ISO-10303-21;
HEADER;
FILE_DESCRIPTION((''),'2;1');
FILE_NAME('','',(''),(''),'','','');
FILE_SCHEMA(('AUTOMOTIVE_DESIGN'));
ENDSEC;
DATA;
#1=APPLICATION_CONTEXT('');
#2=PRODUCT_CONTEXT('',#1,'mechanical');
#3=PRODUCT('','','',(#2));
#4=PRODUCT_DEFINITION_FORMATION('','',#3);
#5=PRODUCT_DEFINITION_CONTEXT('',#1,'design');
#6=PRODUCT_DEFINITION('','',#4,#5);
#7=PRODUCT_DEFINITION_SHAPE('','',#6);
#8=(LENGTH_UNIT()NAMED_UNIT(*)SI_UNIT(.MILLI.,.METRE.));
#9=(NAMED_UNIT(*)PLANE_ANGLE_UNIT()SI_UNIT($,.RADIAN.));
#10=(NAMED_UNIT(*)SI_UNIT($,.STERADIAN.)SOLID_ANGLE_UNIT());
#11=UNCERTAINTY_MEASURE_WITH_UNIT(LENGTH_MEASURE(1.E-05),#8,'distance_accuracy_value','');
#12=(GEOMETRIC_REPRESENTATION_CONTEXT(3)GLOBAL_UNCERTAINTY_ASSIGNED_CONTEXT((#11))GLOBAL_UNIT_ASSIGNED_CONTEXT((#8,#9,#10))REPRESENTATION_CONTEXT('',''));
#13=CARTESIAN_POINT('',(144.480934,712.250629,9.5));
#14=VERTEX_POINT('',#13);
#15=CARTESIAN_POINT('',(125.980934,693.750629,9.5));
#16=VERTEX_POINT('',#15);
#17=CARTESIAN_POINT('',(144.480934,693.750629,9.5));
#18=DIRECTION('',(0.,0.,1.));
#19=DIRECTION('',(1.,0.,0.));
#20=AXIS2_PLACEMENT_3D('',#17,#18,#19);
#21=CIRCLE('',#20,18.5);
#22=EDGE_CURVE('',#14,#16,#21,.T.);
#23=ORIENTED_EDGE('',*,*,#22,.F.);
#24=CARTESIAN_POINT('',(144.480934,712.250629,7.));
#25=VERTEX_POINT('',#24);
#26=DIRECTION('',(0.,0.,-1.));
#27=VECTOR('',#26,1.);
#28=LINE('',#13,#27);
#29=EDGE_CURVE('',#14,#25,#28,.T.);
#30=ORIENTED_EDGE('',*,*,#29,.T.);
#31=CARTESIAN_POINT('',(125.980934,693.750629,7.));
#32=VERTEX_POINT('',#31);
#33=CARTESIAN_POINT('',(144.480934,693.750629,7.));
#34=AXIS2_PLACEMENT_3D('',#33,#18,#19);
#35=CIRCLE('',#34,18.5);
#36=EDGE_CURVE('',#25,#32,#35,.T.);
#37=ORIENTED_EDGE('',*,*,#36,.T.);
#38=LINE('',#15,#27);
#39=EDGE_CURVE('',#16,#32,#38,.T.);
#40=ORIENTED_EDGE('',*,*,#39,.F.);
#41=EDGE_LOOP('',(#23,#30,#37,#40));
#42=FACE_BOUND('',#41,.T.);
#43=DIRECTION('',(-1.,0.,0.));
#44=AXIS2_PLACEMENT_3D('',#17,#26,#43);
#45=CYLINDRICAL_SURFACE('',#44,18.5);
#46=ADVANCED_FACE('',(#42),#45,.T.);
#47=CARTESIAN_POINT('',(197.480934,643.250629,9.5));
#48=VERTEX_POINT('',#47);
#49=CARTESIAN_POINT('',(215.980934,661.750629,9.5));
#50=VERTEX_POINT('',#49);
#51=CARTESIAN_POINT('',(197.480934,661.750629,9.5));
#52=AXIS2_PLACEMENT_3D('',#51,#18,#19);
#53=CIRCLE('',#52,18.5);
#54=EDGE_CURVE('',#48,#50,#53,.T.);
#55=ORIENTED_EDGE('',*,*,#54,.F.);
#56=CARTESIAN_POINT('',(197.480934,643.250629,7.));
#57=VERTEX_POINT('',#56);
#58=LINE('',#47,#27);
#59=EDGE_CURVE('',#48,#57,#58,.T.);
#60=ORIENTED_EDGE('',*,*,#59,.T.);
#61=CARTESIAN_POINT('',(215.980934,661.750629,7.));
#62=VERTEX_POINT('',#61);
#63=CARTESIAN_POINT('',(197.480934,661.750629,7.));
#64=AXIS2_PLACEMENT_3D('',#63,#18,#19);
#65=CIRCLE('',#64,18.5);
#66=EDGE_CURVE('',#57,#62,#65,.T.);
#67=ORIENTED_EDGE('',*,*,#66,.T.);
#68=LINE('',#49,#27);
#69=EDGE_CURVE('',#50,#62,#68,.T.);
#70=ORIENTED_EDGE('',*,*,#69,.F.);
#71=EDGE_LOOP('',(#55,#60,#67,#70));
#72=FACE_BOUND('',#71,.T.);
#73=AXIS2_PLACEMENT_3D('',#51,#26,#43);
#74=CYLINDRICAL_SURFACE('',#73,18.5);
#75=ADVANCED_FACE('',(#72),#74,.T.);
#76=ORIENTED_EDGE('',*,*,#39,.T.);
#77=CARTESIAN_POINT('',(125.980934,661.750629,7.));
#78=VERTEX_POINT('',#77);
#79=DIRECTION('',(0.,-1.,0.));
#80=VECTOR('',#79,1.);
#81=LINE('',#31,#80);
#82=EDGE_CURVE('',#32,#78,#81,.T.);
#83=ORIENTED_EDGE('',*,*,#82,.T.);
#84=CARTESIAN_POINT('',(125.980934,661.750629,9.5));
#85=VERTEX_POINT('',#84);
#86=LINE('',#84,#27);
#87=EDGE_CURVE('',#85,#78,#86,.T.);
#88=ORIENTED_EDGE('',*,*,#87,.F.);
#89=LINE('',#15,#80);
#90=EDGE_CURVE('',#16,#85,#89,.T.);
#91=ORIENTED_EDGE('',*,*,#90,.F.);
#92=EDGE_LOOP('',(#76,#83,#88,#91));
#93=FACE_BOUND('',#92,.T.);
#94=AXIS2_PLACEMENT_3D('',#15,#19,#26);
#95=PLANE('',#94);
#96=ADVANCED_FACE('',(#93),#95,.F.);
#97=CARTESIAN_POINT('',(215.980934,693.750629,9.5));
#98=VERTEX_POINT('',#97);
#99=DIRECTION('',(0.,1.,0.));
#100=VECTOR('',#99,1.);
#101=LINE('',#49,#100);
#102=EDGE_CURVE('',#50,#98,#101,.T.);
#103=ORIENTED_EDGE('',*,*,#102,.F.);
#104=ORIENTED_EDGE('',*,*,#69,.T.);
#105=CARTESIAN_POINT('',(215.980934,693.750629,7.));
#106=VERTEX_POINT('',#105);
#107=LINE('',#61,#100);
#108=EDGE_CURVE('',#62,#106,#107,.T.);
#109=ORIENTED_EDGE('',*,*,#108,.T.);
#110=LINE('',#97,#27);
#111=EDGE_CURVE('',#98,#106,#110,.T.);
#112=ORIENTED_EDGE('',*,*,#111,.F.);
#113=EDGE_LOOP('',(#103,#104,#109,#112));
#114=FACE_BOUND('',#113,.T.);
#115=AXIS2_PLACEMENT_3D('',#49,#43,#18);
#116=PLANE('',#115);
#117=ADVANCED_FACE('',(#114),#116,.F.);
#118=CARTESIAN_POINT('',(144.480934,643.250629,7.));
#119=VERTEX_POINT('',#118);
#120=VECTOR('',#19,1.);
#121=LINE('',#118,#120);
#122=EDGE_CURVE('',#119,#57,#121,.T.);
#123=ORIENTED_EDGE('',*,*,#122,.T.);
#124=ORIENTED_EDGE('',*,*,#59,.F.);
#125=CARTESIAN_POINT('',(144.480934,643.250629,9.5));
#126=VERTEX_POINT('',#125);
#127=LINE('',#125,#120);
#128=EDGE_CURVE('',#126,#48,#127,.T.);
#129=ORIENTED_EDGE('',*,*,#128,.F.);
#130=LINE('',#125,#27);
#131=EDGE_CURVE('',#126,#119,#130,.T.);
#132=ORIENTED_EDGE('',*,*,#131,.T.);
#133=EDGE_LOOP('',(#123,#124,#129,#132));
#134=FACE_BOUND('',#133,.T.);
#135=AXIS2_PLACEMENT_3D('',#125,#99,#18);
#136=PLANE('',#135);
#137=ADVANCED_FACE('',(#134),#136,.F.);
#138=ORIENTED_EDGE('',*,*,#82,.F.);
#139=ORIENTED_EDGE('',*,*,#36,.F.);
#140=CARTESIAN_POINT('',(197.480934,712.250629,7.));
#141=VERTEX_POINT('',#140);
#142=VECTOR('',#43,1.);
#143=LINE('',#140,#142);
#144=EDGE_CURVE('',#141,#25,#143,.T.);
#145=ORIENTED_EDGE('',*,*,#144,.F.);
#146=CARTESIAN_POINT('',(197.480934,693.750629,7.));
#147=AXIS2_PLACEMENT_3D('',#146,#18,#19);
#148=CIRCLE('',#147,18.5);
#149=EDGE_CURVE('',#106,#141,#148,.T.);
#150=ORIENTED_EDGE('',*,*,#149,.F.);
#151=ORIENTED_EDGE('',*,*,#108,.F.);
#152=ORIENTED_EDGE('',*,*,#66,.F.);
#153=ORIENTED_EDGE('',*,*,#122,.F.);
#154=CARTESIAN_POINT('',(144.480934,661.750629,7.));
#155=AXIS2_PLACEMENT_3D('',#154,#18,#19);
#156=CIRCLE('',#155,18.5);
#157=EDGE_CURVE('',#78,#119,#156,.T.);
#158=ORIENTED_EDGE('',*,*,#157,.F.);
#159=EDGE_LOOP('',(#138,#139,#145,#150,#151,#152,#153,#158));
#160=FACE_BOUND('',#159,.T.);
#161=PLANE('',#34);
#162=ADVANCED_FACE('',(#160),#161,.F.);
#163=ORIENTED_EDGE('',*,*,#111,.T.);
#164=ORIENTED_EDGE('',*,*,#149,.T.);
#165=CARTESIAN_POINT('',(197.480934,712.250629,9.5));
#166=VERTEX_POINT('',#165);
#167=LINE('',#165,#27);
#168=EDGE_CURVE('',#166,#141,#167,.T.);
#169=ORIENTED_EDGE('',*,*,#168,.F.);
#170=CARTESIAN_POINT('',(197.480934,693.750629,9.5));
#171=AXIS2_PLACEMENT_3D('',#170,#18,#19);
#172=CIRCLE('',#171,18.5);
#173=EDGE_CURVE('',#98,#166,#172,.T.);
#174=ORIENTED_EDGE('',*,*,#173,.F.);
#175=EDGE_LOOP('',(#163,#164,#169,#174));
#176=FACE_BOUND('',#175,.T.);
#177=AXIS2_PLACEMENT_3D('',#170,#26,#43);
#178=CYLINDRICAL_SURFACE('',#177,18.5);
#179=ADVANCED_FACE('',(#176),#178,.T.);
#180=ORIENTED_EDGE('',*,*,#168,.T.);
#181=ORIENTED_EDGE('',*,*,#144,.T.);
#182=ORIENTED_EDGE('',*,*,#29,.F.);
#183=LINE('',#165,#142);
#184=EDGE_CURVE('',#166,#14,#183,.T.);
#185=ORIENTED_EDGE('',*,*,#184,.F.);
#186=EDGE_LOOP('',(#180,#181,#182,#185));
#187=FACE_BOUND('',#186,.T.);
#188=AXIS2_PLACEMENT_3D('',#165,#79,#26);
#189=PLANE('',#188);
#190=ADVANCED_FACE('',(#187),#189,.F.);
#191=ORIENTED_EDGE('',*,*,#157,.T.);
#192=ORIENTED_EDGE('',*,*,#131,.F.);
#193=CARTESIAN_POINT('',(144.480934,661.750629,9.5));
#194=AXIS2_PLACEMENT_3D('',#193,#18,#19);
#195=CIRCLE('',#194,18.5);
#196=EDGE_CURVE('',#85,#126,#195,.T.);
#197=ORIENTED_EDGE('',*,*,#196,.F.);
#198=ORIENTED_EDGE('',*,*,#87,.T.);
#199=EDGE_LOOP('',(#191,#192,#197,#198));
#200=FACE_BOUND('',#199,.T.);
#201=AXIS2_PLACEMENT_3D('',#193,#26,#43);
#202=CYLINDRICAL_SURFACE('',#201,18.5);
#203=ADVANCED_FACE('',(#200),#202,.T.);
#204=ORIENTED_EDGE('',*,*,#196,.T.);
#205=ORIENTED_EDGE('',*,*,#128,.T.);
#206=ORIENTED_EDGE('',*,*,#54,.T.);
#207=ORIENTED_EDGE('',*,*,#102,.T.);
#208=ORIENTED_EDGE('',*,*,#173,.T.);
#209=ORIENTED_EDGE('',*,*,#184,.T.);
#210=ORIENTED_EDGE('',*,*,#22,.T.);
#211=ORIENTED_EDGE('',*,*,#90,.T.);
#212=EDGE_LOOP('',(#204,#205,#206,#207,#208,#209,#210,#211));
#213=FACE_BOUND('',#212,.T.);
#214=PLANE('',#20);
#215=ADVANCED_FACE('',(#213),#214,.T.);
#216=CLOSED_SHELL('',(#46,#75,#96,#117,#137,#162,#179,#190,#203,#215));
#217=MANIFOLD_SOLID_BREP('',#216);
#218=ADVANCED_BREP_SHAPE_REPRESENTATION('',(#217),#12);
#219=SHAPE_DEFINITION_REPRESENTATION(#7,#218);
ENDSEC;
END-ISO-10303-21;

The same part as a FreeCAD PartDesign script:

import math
import FreeCAD as App
import Part
import Sketcher
from FreeCAD import Vector
Q = App.Units.Quantity

doc = App.newDocument("Part")
body = doc.addObject("PartDesign::Body", "Body")

# Sketch on XY plane
sketch1 = body.newObject("Sketcher::SketchObject", "Sketch")
sketch1.AttachmentSupport = (doc.getObject("XY_Plane"), [""])
sketch1.MapMode = "FlatFace"
sketch1.AttachmentOffset = App.Placement(Vector(0, 0, 7), App.Rotation())
sketch1.addGeometry(Part.LineSegment(Vector(144, 643, 0), Vector(197, 643, 0)), False)
sketch1.addGeometry(Part.ArcOfCircle(Part.Circle(Vector(197, 662, 0), Vector(0, 0, 1), 18), math.radians(-90), math.radians(0)), False)
sketch1.addGeometry(Part.LineSegment(Vector(216, 662, 0), Vector(216, 694, 0)), False)
sketch1.addGeometry(Part.ArcOfCircle(Part.Circle(Vector(197, 694, 0), Vector(0, 0, 1), 18), math.radians(0), math.radians(90)), False)
sketch1.addGeometry(Part.LineSegment(Vector(197, 712, 0), Vector(144, 712, 0)), False)
sketch1.addGeometry(Part.ArcOfCircle(Part.Circle(Vector(144, 694, 0), Vector(0, 0, 1), 18), math.radians(90), math.radians(180)), False)
sketch1.addGeometry(Part.LineSegment(Vector(126, 694, 0), Vector(126, 662, 0)), False)
sketch1.addGeometry(Part.ArcOfCircle(Part.Circle(Vector(144, 662, 0), Vector(0, 0, 1), 18), math.radians(180), math.radians(270)), False)
sketch1.addGeometry(Part.LineSegment(Vector(197, 645, 0), Vector(144, 645, 0)), False)
sketch1.addGeometry(Part.ArcOfCircle(Part.Circle(Vector(144, 662, 0), Vector(0, 0, 1), 17), math.radians(-180), math.radians(-90)), False)
sketch1.addGeometry(Part.LineSegment(Vector(127, 662, 0), Vector(127, 694, 0)), False)
sketch1.addGeometry(Part.ArcOfCircle(Part.Circle(Vector(144, 694, 0), Vector(0, 0, 1), 17), math.radians(90), math.radians(180)), False)
sketch1.addGeometry(Part.LineSegment(Vector(144, 711, 0), Vector(197, 711, 0)), False)
sketch1.addGeometry(Part.ArcOfCircle(Part.Circle(Vector(197, 694, 0), Vector(0, 0, 1), 17), math.radians(0), math.radians(90)), False)
sketch1.addGeometry(Part.LineSegment(Vector(214, 694, 0), Vector(214, 662, 0)), False)
sketch1.addGeometry(Part.ArcOfCircle(Part.Circle(Vector(197, 662, 0), Vector(0, 0, 1), 17), math.radians(-90), math.radians(0)), False)
sketch1.addConstraint(Sketcher.Constraint("Tangent", 0, 2, 1, 1))
sketch1.addConstraint(Sketcher.Constraint("Tangent", 1, 2, 2, 1))
sketch1.addConstraint(Sketcher.Constraint("Tangent", 2, 2, 3, 1))
sketch1.addConstraint(Sketcher.Constraint("Tangent", 3, 2, 4, 1))
sketch1.addConstraint(Sketcher.Constraint("Tangent", 4, 2, 5, 1))
sketch1.addConstraint(Sketcher.Constraint("Tangent", 5, 2, 6, 1))
sketch1.addConstraint(Sketcher.Constraint("Tangent", 6, 2, 7, 1))
sketch1.addConstraint(Sketcher.Constraint("Tangent", 7, 2, 0, 1))
sketch1.addConstraint(Sketcher.Constraint("Tangent", 8, 2, 9, 2))
sketch1.addConstraint(Sketcher.Constraint("Tangent", 9, 1, 10, 1))
sketch1.addConstraint(Sketcher.Constraint("Tangent", 10, 2, 11, 2))
sketch1.addConstraint(Sketcher.Constraint("Tangent", 11, 1, 12, 1))
sketch1.addConstraint(Sketcher.Constraint("Tangent", 12, 2, 13, 2))
sketch1.addConstraint(Sketcher.Constraint("Tangent", 13, 1, 14, 1))
sketch1.addConstraint(Sketcher.Constraint("Tangent", 14, 2, 15, 2))
sketch1.addConstraint(Sketcher.Constraint("Tangent", 15, 1, 8, 1))
sketch1.addConstraint(Sketcher.Constraint("Horizontal", 0))
sketch1.addConstraint(Sketcher.Constraint("Vertical", 2))
sketch1.addConstraint(Sketcher.Constraint("Horizontal", 4))
sketch1.addConstraint(Sketcher.Constraint("Vertical", 6))
sketch1.addConstraint(Sketcher.Constraint("Horizontal", 8))
sketch1.addConstraint(Sketcher.Constraint("Vertical", 10))
sketch1.addConstraint(Sketcher.Constraint("Horizontal", 12))
sketch1.addConstraint(Sketcher.Constraint("Vertical", 14))
sketch1.addConstraint(Sketcher.Constraint("Coincident", 9, 3, 7, 3))
sketch1.addConstraint(Sketcher.Constraint("Coincident", 11, 3, 5, 3))
sketch1.addConstraint(Sketcher.Constraint("Coincident", 13, 3, 3, 3))
sketch1.addConstraint(Sketcher.Constraint("Equal", 1, 3))
sketch1.addConstraint(Sketcher.Constraint("Equal", 3, 5))
sketch1.addConstraint(Sketcher.Constraint("Equal", 5, 7))
sketch1.addConstraint(Sketcher.Constraint("Equal", 13, 15))
sketch1.addConstraint(Sketcher.Constraint("Radius", 9, Q("17 mm")))
sketch1.addConstraint(Sketcher.Constraint("Radius", 1, Q("18.5 mm")))
sketch1.addConstraint(Sketcher.Constraint("DistanceX", 0, 1, 0, 2, Q("53 mm")))
sketch1.addConstraint(Sketcher.Constraint("DistanceY", 2, 1, 2, 2, Q("32 mm")))
sketch1.addConstraint(Sketcher.Constraint("DistanceY", -1, 1, 1, 3, Q("661.750629 mm")))
sketch1.addConstraint(Sketcher.Constraint("DistanceX", -1, 1, 1, 3, Q("197.480934 mm")))
pad1 = body.newObject("PartDesign::Pad", "Pad")
pad1.Profile = sketch1
pad1.Length = 2.5

# Sketch on XY plane
sketch2 = body.newObject("Sketcher::SketchObject", "Sketch001")
sketch2.AttachmentSupport = (doc.getObject("XY_Plane"), [""])
sketch2.MapMode = "FlatFace"
sketch2.AttachmentOffset = App.Placement(Vector(0, 0, 7), App.Rotation())
sketch2.addGeometry(Part.LineSegment(Vector(126, 694, 0), Vector(126, 662, 0)), False)
sketch2.addGeometry(Part.ArcOfCircle(Part.Circle(Vector(144, 662, 0), Vector(0, 0, 1), 18), math.radians(180), math.radians(270)), False)
sketch2.addGeometry(Part.LineSegment(Vector(144, 643, 0), Vector(197, 643, 0)), False)
sketch2.addGeometry(Part.ArcOfCircle(Part.Circle(Vector(197, 662, 0), Vector(0, 0, 1), 18), math.radians(-90), math.radians(0)), False)
sketch2.addGeometry(Part.LineSegment(Vector(216, 662, 0), Vector(216, 694, 0)), False)
sketch2.addGeometry(Part.ArcOfCircle(Part.Circle(Vector(197, 694, 0), Vector(0, 0, 1), 18), math.radians(0), math.radians(90)), False)
sketch2.addGeometry(Part.LineSegment(Vector(197, 712, 0), Vector(144, 712, 0)), False)
sketch2.addGeometry(Part.ArcOfCircle(Part.Circle(Vector(144, 694, 0), Vector(0, 0, 1), 18), math.radians(90), math.radians(180)), False)
sketch2.addConstraint(Sketcher.Constraint("Tangent", 0, 2, 1, 1))
sketch2.addConstraint(Sketcher.Constraint("Tangent", 1, 2, 2, 1))
sketch2.addConstraint(Sketcher.Constraint("Tangent", 2, 2, 3, 1))
sketch2.addConstraint(Sketcher.Constraint("Tangent", 3, 2, 4, 1))
sketch2.addConstraint(Sketcher.Constraint("Tangent", 4, 2, 5, 1))
sketch2.addConstraint(Sketcher.Constraint("Tangent", 5, 2, 6, 1))
sketch2.addConstraint(Sketcher.Constraint("Tangent", 6, 2, 7, 1))
sketch2.addConstraint(Sketcher.Constraint("Tangent", 7, 2, 0, 1))
sketch2.addConstraint(Sketcher.Constraint("Vertical", 0))
sketch2.addConstraint(Sketcher.Constraint("Horizontal", 2))
sketch2.addConstraint(Sketcher.Constraint("Vertical", 4))
sketch2.addConstraint(Sketcher.Constraint("Horizontal", 6))
sketch2.addConstraint(Sketcher.Constraint("Equal", 1, 3))
sketch2.addConstraint(Sketcher.Constraint("Equal", 3, 5))
sketch2.addConstraint(Sketcher.Constraint("Equal", 5, 7))
sketch2.addConstraint(Sketcher.Constraint("Radius", 1, Q("18.5 mm")))
sketch2.addConstraint(Sketcher.Constraint("DistanceX", 2, 1, 2, 2, Q("53 mm")))
sketch2.addConstraint(Sketcher.Constraint("DistanceY", 0, 2, 0, 1, Q("32 mm")))
sketch2.addConstraint(Sketcher.Constraint("DistanceY", -1, 1, 1, 3, Q("661.750629 mm")))
sketch2.addConstraint(Sketcher.Constraint("DistanceX", -1, 1, 1, 3, Q("144.480934 mm")))
pad2 = body.newObject("PartDesign::Pad", "Pad001")
pad2.Profile = sketch2
pad2.Length = 2.5

doc.recompute()
